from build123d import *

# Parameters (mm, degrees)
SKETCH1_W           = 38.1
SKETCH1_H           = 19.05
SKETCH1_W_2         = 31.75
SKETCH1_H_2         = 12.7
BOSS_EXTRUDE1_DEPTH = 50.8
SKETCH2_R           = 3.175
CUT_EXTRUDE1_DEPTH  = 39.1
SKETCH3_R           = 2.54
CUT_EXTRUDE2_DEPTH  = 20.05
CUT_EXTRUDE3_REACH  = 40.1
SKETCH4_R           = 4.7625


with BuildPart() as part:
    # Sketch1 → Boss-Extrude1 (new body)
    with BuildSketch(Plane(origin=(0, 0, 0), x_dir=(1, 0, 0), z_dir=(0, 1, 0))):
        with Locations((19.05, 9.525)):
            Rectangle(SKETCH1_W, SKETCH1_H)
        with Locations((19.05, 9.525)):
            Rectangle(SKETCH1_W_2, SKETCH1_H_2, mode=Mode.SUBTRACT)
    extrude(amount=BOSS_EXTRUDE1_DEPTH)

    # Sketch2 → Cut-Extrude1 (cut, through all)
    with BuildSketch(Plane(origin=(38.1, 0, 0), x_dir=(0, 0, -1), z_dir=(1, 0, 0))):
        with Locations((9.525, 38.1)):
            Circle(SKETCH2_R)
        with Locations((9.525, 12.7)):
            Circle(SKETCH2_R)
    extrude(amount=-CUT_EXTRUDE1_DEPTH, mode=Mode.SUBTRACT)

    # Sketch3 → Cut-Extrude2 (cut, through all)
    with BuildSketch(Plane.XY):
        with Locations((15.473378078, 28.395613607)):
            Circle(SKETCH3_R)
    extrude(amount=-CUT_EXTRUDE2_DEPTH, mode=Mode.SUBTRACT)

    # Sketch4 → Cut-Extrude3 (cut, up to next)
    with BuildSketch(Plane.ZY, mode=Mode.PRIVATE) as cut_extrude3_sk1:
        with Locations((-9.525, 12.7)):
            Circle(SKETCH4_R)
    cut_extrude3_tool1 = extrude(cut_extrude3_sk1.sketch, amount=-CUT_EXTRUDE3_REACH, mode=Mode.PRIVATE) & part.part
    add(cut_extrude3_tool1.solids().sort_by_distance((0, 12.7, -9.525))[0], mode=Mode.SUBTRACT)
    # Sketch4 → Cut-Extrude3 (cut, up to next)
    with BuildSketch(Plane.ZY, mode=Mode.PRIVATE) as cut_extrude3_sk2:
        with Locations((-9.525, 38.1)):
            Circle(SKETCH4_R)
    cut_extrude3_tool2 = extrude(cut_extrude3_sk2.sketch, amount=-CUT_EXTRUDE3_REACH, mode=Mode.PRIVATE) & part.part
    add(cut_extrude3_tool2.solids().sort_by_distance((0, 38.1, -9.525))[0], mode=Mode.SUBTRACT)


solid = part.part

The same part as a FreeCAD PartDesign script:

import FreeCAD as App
import Part
import Sketcher
Q = App.Units.Quantity

doc = App.newDocument("Part")
body = doc.addObject("PartDesign::Body", "Body")

# Sketch on XZ plane
sketch1 = doc.addObject("Sketcher::SketchObject", "Sketch")
body.addObject(sketch1)
sketch1.AttachmentSupport = (doc.XZ_Plane, [""])
sketch1.MapMode = "FlatFace"
sketch1.addGeometry(Part.LineSegment(App.Vector(0, -19.05, 0), App.Vector(0, 0, 0)), False)
sketch1.addGeometry(Part.LineSegment(App.Vector(0, 0, 0), App.Vector(38.1, 0, 0)), False)
sketch1.addGeometry(Part.LineSegment(App.Vector(38.1, 0, 0), App.Vector(38.1, -19.05, 0)), False)
sketch1.addGeometry(Part.LineSegment(App.Vector(38.1, -19.05, 0), App.Vector(0, -19.05, 0)), False)
sketch1.addGeometry(Part.LineSegment(App.Vector(34.925, -3.175, 0), App.Vector(3.175, -3.175, 0)), False)
sketch1.addGeometry(Part.LineSegment(App.Vector(3.175, -3.175, 0), App.Vector(3.175, -15.875, 0)), False)
sketch1.addGeometry(Part.LineSegment(App.Vector(3.175, -15.875, 0), App.Vector(34.925, -15.875, 0)), False)
sketch1.addGeometry(Part.LineSegment(App.Vector(34.925, -15.875, 0), App.Vector(34.925, -3.175, 0)), False)
sketch1.addConstraint(Sketcher.Constraint("Coincident", 0, 2, 1, 1))
sketch1.addConstraint(Sketcher.Constraint("Coincident", 1, 2, 2, 1))
sketch1.addConstraint(Sketcher.Constraint("Coincident", 2, 2, 3, 1))
sketch1.addConstraint(Sketcher.Constraint("Coincident", 3, 2, 0, 1))
sketch1.addConstraint(Sketcher.Constraint("Coincident", 4, 2, 5, 1))
sketch1.addConstraint(Sketcher.Constraint("Coincident", 5, 2, 6, 1))
sketch1.addConstraint(Sketcher.Constraint("Coincident", 6, 2, 7, 1))
sketch1.addConstraint(Sketcher.Constraint("Coincident", 7, 2, 4, 1))
sketch1.addConstraint(Sketcher.Constraint("Vertical", 0))
sketch1.addConstraint(Sketcher.Constraint("Horizontal", 1))
sketch1.addConstraint(Sketcher.Constraint("Vertical", 2))
sketch1.addConstraint(Sketcher.Constraint("Horizontal", 3))
sketch1.addConstraint(Sketcher.Constraint("Horizontal", 4))
sketch1.addConstraint(Sketcher.Constraint("Vertical", 5))
sketch1.addConstraint(Sketcher.Constraint("Horizontal", 6))
sketch1.addConstraint(Sketcher.Constraint("Vertical", 7))
sketch1.addConstraint(Sketcher.Constraint("Coincident", 0, 2, -1, 1))
sketch1.addConstraint(Sketcher.Constraint("DistanceX", 1, 1, 1, 2, Q("1.5 in")))
sketch1.addConstraint(Sketcher.Constraint("DistanceY", 5, 2, 5, 1, Q("0.5 in")))
sketch1.addConstraint(Sketcher.Constraint("DistanceX", 4, 2, 4, 1, Q("1.25 in")))
sketch1.addConstraint(Sketcher.Constraint("DistanceY", 0, 1, 0, 2, Q("0.75 in")))
sketch1.addConstraint(Sketcher.Constraint("DistanceX", -1, 1, 4, 2, Q("0.125 in")))
sketch1.addConstraint(Sketcher.Constraint("DistanceY", 4, 2, -1, 1, Q("0.125 in")))
pad1 = doc.addObject("PartDesign::Pad", "Pad")
body.addObject(pad1)
pad1.Profile = sketch1
pad1.Length = Q("2 in")
pad1.Reversed = True

# Sketch on YZ plane
sketch2 = doc.addObject("Sketcher::SketchObject", "Sketch001")
body.addObject(sketch2)
sketch2.AttachmentSupport = (doc.YZ_Plane, [""])
sketch2.MapMode = "FlatFace"
sketch2.AttachmentOffset = App.Placement(App.Vector(0, 0, 1.5 * 25.4), App.Rotation())
sketch2.addGeometry(Part.Circle(App.Vector(38.1, -9.525, 0), App.Vector(0, 0, 1), 3.175), False)
sketch2.addGeometry(Part.Circle(App.Vector(12.7, -9.525, 0), App.Vector(0, 0, 1), 3.175), False)
sketch2.addConstraint(Sketcher.Constraint("Equal", 0, 1))
sketch2.addConstraint(Sketcher.Constraint("Horizontal", 0, 3, 1, 3))
sketch2.addConstraint(Sketcher.Constraint("Diameter", 0, Q("0.25 in")))
sketch2.addConstraint(Sketcher.Constraint("DistanceX", 1, 3, 0, 3, Q("1 in")))
sketch2.addConstraint(Sketcher.Constraint("DistanceX", -1, 1, 0, 3, Q("1.5 in")))
sketch2.addConstraint(Sketcher.Constraint("DistanceY", 0, 3, -1, 1, Q("0.375 in")))
pocket1 = doc.addObject("PartDesign::Pocket", "Pocket")
body.addObject(pocket1)
pocket1.Profile = sketch2
pocket1.Type = "ThroughAll"

# Sketch on XY plane
sketch3 = doc.addObject("Sketcher::SketchObject", "Sketch002")
body.addObject(sketch3)
sketch3.AttachmentSupport = (doc.XY_Plane, [""])
sketch3.MapMode = "FlatFace"
sketch3.addGeometry(Part.Circle(App.Vector(15.473378, 28.395614, 0), App.Vector(0, 0, 1), 2.54), False)
sketch3.addConstraint(Sketcher.Constraint("Diameter", 0, Q("0.2 in")))
sketch3.addConstraint(Sketcher.Constraint("DistanceX", -1, 1, 0, 3, 15.473378))
sketch3.addConstraint(Sketcher.Constraint("DistanceY", -1, 1, 0, 3, 28.395614))
pocket2 = doc.addObject("PartDesign::Pocket", "Pocket001")
body.addObject(pocket2)
pocket2.Profile = sketch3
pocket2.Type = "ThroughAll"

# Sketch on YZ plane
sketch4 = doc.addObject("Sketcher::SketchObject", "Sketch003")
body.addObject(sketch4)
sketch4.AttachmentSupport = (doc.YZ_Plane, [""])
sketch4.MapMode = "FlatFace"
sketch4.addGeometry(Part.Circle(App.Vector(12.7, -9.525, 0), App.Vector(0, 0, 1), 4.7625), False)
sketch4.addConstraint(Sketcher.Constraint("Diameter", 0, Q("0.375 in")))
sketch4.addConstraint(Sketcher.Constraint("DistanceX", -1, 1, 0, 3, Q("0.5 in")))
sketch4.addConstraint(Sketcher.Constraint("DistanceY", 0, 3, -1, 1, Q("0.375 in")))
pocket3 = doc.addObject("PartDesign::Pocket", "Pocket002")
body.addObject(pocket3)
pocket3.Profile = sketch4
pocket3.Length = Q("0.125 in")
pocket3.Reversed = True

# Sketch on YZ plane
sketch5 = doc.addObject("Sketcher::SketchObject", "Sketch004")
body.addObject(sketch5)
sketch5.AttachmentSupport = (doc.YZ_Plane, [""])
sketch5.MapMode = "FlatFace"
sketch5.addGeometry(Part.Circle(App.Vector(38.1, -9.525, 0), App.Vector(0, 0, 1), 4.7625), False)
sketch5.addConstraint(Sketcher.Constraint("Diameter", 0, Q("0.375 in")))
sketch5.addConstraint(Sketcher.Constraint("DistanceX", -1, 1, 0, 3, Q("1.5 in")))
sketch5.addConstraint(Sketcher.Constraint("DistanceY", 0, 3, -1, 1, Q("0.375 in")))
pocket4 = doc.addObject("PartDesign::Pocket", "Pocket003")
body.addObject(pocket4)
pocket4.Profile = sketch5
pocket4.Length = Q("0.125 in")
pocket4.Reversed = True

doc.recompute()
